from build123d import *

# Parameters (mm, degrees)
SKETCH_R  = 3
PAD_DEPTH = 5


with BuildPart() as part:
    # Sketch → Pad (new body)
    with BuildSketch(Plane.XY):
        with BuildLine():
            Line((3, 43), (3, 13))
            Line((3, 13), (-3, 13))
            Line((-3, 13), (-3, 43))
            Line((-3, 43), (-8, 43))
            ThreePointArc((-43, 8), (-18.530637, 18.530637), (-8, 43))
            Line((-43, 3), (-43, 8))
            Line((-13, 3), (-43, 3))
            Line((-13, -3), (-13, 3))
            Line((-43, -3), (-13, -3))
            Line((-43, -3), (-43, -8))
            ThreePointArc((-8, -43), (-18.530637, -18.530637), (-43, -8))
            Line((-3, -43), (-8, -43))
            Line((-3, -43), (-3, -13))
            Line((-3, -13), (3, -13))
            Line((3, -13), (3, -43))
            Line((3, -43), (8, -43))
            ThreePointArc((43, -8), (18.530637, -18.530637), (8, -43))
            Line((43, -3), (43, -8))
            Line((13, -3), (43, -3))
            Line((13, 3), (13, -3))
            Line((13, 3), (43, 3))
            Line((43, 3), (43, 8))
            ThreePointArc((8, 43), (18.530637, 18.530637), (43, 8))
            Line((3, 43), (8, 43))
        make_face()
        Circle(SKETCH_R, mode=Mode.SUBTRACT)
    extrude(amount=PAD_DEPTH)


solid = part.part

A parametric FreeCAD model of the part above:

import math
import FreeCAD as App
import Part
import Sketcher
Q = App.Units.Quantity

doc = App.newDocument("Part")
body = doc.addObject("PartDesign::Body", "Body")

# Sketch on XY plane
sketch1 = doc.addObject("Sketcher::SketchObject", "Sketch")
body.addObject(sketch1)
sketch1.AttachmentSupport = (doc.XY_Plane, [""])
sketch1.MapMode = "FlatFace"
sketch1.addGeometry([
    Part.LineSegment(App.Vector(3, 43, 0), App.Vector(3, 13, 0)),  # 0
    Part.LineSegment(App.Vector(3, 13, 0), App.Vector(-3, 13, 0)),  # 1
    Part.LineSegment(App.Vector(-3, 13, 0), App.Vector(-3, 43, 0)),  # 2
    Part.LineSegment(App.Vector(-3, 43, 0), App.Vector(-8, 43, 0)),  # 3
    Part.ArcOfCircle(Part.Circle(App.Vector(-43.98648, 43.98648, 0), App.Vector(0, 0, 1), 35.999998), math.radians(-88.429772), math.radians(-1.570228)),  # 4
    Part.LineSegment(App.Vector(-43, 8, 0), App.Vector(-43, 3, 0)),  # 5
    Part.LineSegment(App.Vector(-43, 3, 0), App.Vector(-13, 3, 0)),  # 6
    Part.LineSegment(App.Vector(-13, 3, 0), App.Vector(-13, -3, 0)),  # 7
    Part.LineSegment(App.Vector(-13, -3, 0), App.Vector(-43, -3, 0)),  # 8
    Part.LineSegment(App.Vector(-43, -3, 0), App.Vector(-43, -8, 0)),  # 9
    Part.ArcOfCircle(Part.Circle(App.Vector(-43.98648, -43.98648, 0), App.Vector(0, 0, 1), 35.999998), math.radians(1.570228), math.radians(88.429772)),  # 10
    Part.LineSegment(App.Vector(-8, -43, 0), App.Vector(-3, -43, 0)),  # 11
    Part.LineSegment(App.Vector(-3, -43, 0), App.Vector(-3, -13, 0)),  # 12
    Part.LineSegment(App.Vector(-3, -13, 0), App.Vector(3, -13, 0)),  # 13
    Part.LineSegment(App.Vector(3, -13, 0), App.Vector(3, -43, 0)),  # 14
    Part.LineSegment(App.Vector(3, -43, 0), App.Vector(8, -43, 0)),  # 15
    Part.ArcOfCircle(Part.Circle(App.Vector(43.98648, -43.98648, 0), App.Vector(0, 0, 1), 35.999998), math.radians(91.570228), math.radians(178.429772)),  # 16
    Part.LineSegment(App.Vector(43, -8, 0), App.Vector(43, -3, 0)),  # 17
    Part.LineSegment(App.Vector(43, -3, 0), App.Vector(13, -3, 0)),  # 18
    Part.LineSegment(App.Vector(13, -3, 0), App.Vector(13, 3, 0)),  # 19
    Part.LineSegment(App.Vector(13, 3, 0), App.Vector(43, 3, 0)),  # 20
    Part.LineSegment(App.Vector(43, 3, 0), App.Vector(43, 8, 0)),  # 21
    Part.ArcOfCircle(Part.Circle(App.Vector(43.98648, 43.98648, 0), App.Vector(0, 0, 1), 35.999998), math.radians(-178.429772), math.radians(-91.570228)),  # 22
    Part.LineSegment(App.Vector(8, 43, 0), App.Vector(3, 43, 0)),  # 23
    Part.Circle(App.Vector(0, 0, 0), App.Vector(0, 0, 1), 3),  # 24
], False)
sketch1.addConstraint([
    Sketcher.Constraint("Coincident", 0, 2, 1, 1),
    Sketcher.Constraint("Coincident", 1, 2, 2, 1),
    Sketcher.Constraint("Coincident", 2, 2, 3, 1),
    Sketcher.Constraint("Coincident", 3, 2, 4, 2),
    Sketcher.Constraint("Coincident", 4, 1, 5, 1),
    Sketcher.Constraint("Coincident", 5, 2, 6, 1),
    Sketcher.Constraint("Coincident", 6, 2, 7, 1),
    Sketcher.Constraint("Coincident", 7, 2, 8, 1),
    Sketcher.Constraint("Coincident", 8, 2, 9, 1),
    Sketcher.Constraint("Coincident", 9, 2, 10, 2),
    Sketcher.Constraint("Coincident", 10, 1, 11, 1),
    Sketcher.Constraint("Coincident", 11, 2, 12, 1),
    Sketcher.Constraint("Coincident", 12, 2, 13, 1),
    Sketcher.Constraint("Coincident", 13, 2, 14, 1),
    Sketcher.Constraint("Coincident", 14, 2, 15, 1),
    Sketcher.Constraint("Coincident", 15, 2, 16, 2),
    Sketcher.Constraint("Coincident", 16, 1, 17, 1),
    Sketcher.Constraint("Coincident", 17, 2, 18, 1),
    Sketcher.Constraint("Coincident", 18, 2, 19, 1),
    Sketcher.Constraint("Coincident", 19, 2, 20, 1),
    Sketcher.Constraint("Coincident", 20, 2, 21, 1),
    Sketcher.Constraint("Coincident", 21, 2, 22, 2),
    Sketcher.Constraint("Coincident", 22, 1, 23, 1),
    Sketcher.Constraint("Coincident", 23, 2, 0, 1),
    Sketcher.Constraint("Vertical", 0),
    Sketcher.Constraint("Horizontal", 1),
    Sketcher.Constraint("Vertical", 2),
    Sketcher.Constraint("Horizontal", 3),
    Sketcher.Constraint("Vertical", 5),
    Sketcher.Constraint("Horizontal", 6),
    Sketcher.Constraint("Vertical", 7),
    Sketcher.Constraint("Horizontal", 8),
    Sketcher.Constraint("Vertical", 9),
    Sketcher.Constraint("Horizontal", 11),
    Sketcher.Constraint("Vertical", 12),
    Sketcher.Constraint("Horizontal", 13),
    Sketcher.Constraint("Vertical", 14),
    Sketcher.Constraint("Horizontal", 15),
    Sketcher.Constraint("Vertical", 17),
    Sketcher.Constraint("Horizontal", 18),
    Sketcher.Constraint("Vertical", 19),
    Sketcher.Constraint("Horizontal", 20),
    Sketcher.Constraint("Vertical", 21),
    Sketcher.Constraint("Horizontal", 23),
    Sketcher.Constraint("Coincident", 24, 3, -1, 1),
    Sketcher.Constraint("Equal", 4, 10),
    Sketcher.Constraint("Equal", 10, 16),
    Sketcher.Constraint("Equal", 16, 22),
    Sketcher.Constraint("Symmetric", 4, 3, 16, 3, -1, 1),
    Sketcher.Constraint("Symmetric", 10, 3, 22, 3, -1, 1),
    Sketcher.Constraint("Symmetric", 0, 2, 12, 2, -1, 1),
    Sketcher.Constraint("Symmetric", 2, 2, 14, 2, -1, 1),
    Sketcher.Constraint("Symmetric", 5, 2, 17, 2, -1, 1),
    Sketcher.Constraint("Symmetric", 7, 2, 19, 2, -1, 1),
    Sketcher.Constraint("Symmetric", 10, 3, 16, 3, -2),
    Sketcher.Constraint("Symmetric", 11, 2, 14, 2, -2),
    Sketcher.Constraint("Symmetric", 8, 2, 17, 2, -2),
    Sketcher.Constraint("Horizontal", 4, 1, 21, 2),
    Sketcher.Constraint("Horizontal", 3, 2, 22, 1),
    Sketcher.Constraint("Equal", 20, 0),
    Sketcher.Constraint("Equal", 23, 5),
    Sketcher.Constraint("Equal", 13, 7),
    Sketcher.Constraint("Diameter", 24, Q("6 mm")),
    Sketcher.Constraint("Radius", 4, Q("35.999998 mm")),
    Sketcher.Constraint("DistanceX", 1, 2, 1, 1, Q("6 mm")),
    Sketcher.Constraint("DistanceX", 3, 2, 3, 1, Q("5 mm")),
    Sketcher.Constraint("DistanceX", 6, 1, 6, 2, Q("30 mm")),
    Sketcher.Constraint("DistanceY", -1, 1, 0, 2, Q("13 mm")),
    Sketcher.Constraint("DistanceX", 4, 1, -1, 1, Q("43 mm")),
])
pad1 = doc.addObject("PartDesign::Pad", "Pad")
body.addObject(pad1)
pad1.Profile = sketch1
pad1.Length = 5

doc.recompute()
